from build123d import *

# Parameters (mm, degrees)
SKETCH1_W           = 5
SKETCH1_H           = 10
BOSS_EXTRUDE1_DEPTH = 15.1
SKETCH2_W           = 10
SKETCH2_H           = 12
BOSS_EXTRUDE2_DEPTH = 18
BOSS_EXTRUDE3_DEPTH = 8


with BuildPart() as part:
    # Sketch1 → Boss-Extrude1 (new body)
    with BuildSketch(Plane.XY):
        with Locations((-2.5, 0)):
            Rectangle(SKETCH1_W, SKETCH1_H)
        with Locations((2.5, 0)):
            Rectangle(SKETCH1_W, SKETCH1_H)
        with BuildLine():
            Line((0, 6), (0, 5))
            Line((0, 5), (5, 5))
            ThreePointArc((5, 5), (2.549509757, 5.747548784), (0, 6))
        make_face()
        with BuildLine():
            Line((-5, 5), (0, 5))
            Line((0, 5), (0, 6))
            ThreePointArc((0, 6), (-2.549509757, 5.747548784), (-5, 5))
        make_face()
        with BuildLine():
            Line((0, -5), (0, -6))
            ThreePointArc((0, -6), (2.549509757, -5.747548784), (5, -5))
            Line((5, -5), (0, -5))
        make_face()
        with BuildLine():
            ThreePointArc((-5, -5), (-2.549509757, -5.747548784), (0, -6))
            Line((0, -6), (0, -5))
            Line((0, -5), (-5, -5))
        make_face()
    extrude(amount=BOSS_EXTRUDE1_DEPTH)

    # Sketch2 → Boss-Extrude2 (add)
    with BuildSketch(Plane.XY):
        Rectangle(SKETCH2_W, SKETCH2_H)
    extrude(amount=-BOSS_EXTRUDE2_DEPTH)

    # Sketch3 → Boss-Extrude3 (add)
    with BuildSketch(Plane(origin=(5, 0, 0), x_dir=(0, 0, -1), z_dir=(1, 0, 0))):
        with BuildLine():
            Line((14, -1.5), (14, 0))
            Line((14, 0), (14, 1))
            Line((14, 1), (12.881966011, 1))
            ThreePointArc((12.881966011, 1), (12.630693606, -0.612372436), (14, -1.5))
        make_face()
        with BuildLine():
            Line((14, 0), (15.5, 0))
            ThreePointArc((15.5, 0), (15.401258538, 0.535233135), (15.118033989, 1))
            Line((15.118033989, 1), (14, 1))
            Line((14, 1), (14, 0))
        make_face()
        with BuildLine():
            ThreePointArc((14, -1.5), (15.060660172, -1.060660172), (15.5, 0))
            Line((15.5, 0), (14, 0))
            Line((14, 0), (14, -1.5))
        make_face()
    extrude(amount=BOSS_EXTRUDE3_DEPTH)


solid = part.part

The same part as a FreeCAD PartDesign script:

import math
import FreeCAD as App
import Part
import Sketcher
from FreeCAD import Vector
Q = App.Units.Quantity

doc = App.newDocument("Part")
body = doc.addObject("PartDesign::Body", "Body")

sketch1 = doc.addObject("Sketcher::SketchObject", "Sketch")
body.addObject(sketch1)
sketch1.AttachmentSupport = (doc.XY_Plane, [""])
sketch1.MapMode = "FlatFace"
sketch1.addGeometry([
    Part.LineSegment(Vector(-5, 5, 0), Vector(-5, -5, 0)),
    Part.ArcOfCircle(Part.Circle(Vector(0, 7, 0), Vector(0, 0, 1), 13), math.radians(-113), math.radians(-90)),
    Part.ArcOfCircle(Part.Circle(Vector(0, 7, 0), Vector(0, 0, 1), 13), math.radians(-90), math.radians(-67)),
    Part.LineSegment(Vector(5, -5, 0), Vector(5, 5, 0)),
    Part.ArcOfCircle(Part.Circle(Vector(0, -7, 0), Vector(0, 0, 1), 13), math.radians(67), math.radians(90)),
    Part.ArcOfCircle(Part.Circle(Vector(0, -7, 0), Vector(0, 0, 1), 13), math.radians(90), math.radians(113)),
], False)
sketch1.addConstraint([
    Sketcher.Constraint("Coincident", 0, 2, 1, 1),
    Sketcher.Constraint("Tangent", 1, 2, 2, 1),
    Sketcher.Constraint("Coincident", 2, 2, 3, 1),
    Sketcher.Constraint("Coincident", 3, 2, 4, 1),
    Sketcher.Constraint("Tangent", 4, 2, 5, 1),
    Sketcher.Constraint("Coincident", 5, 2, 0, 1),
    Sketcher.Constraint("Vertical", 0),
    Sketcher.Constraint("Vertical", 3),
    Sketcher.Constraint("Equal", 1, 2),
    Sketcher.Constraint("Equal", 2, 4),
    Sketcher.Constraint("Equal", 4, 5),
    Sketcher.Constraint("Symmetric", 1, 3, 4, 3, -1, 1),
    Sketcher.Constraint("Symmetric", 0, 2, 2, 2, -2),
    Sketcher.Constraint("PointOnObject", 1, 2, -2),
    Sketcher.Constraint("PointOnObject", 4, 2, -2),
    Sketcher.Constraint("Radius", 1, Q("13 mm")),
    Sketcher.Constraint("DistanceY", 0, 2, 0, 1, Q("10 mm")),
    Sketcher.Constraint("DistanceY", -1, 1, 1, 3, Q("7 mm")),
])
pad1 = doc.addObject("PartDesign::Pad", "Pad")
body.addObject(pad1)
pad1.Profile = sketch1
pad1.Length = 15.1

sketch2 = doc.addObject("Sketcher::SketchObject", "Sketch001")
body.addObject(sketch2)
sketch2.AttachmentSupport = (doc.XY_Plane, [""])
sketch2.MapMode = "FlatFace"
sketch2.addGeometry([
    Part.LineSegment(Vector(-5, 6, 0), Vector(-5, -6, 0)),
    Part.LineSegment(Vector(-5, -6, 0), Vector(5, -6, 0)),
    Part.LineSegment(Vector(5, -6, 0), Vector(5, 6, 0)),
    Part.LineSegment(Vector(5, 6, 0), Vector(-5, 6, 0)),
], False)
sketch2.addConstraint([
    Sketcher.Constraint("Coincident", 0, 2, 1, 1),
    Sketcher.Constraint("Coincident", 1, 2, 2, 1),
    Sketcher.Constraint("Coincident", 2, 2, 3, 1),
    Sketcher.Constraint("Coincident", 3, 2, 0, 1),
    Sketcher.Constraint("Vertical", 0),
    Sketcher.Constraint("Horizontal", 1),
    Sketcher.Constraint("Vertical", 2),
    Sketcher.Constraint("Horizontal", 3),
    Sketcher.Constraint("Symmetric", 0, 2, 2, 2, -1, 1),
    Sketcher.Constraint("DistanceX", 1, 1, 1, 2, Q("10 mm")),
    Sketcher.Constraint("DistanceY", 0, 2, 0, 1, Q("12 mm")),
])
pad2 = doc.addObject("PartDesign::Pad", "Pad001")
body.addObject(pad2)
pad2.Profile = sketch2
pad2.Length = 18
pad2.Reversed = True

sketch3 = doc.addObject("Sketcher::SketchObject", "Sketch002")
body.addObject(sketch3)
sketch3.AttachmentSupport = (doc.YZ_Plane, [""])
sketch3.MapMode = "FlatFace"
sketch3.AttachmentOffset = App.Placement(Vector(0, 0, 5), App.Rotation())
sketch3.addGeometry([
    Part.ArcOfCircle(Part.Circle(Vector(0, -14, 0), Vector(0, 0, 1), 1.5), math.radians(-90), math.radians(-48)),
    Part.LineSegment(Vector(1, -15.1, 0), Vector(1, -12.9, 0)),
    Part.ArcOfCircle(Part.Circle(Vector(0, -14, 0), Vector(0, 0, 1), 1.5), math.radians(48), math.radians(180)),
    Part.ArcOfCircle(Part.Circle(Vector(0, -14, 0), Vector(0, 0, 1), 1.5), math.radians(180), math.radians(270)),
], False)
sketch3.addConstraint([
    Sketcher.Constraint("Coincident", 0, 2, 1, 1),
    Sketcher.Constraint("Coincident", 1, 2, 2, 1),
    Sketcher.Constraint("Tangent", 2, 2, 3, 1),
    Sketcher.Constraint("Tangent", 3, 2, 0, 1),
    Sketcher.Constraint("Vertical", 1),
    Sketcher.Constraint("Coincident", 2, 3, 0, 3),
    Sketcher.Constraint("PointOnObject", 0, 3, -2),
    Sketcher.Constraint("PointOnObject", 3, 2, -2),
    Sketcher.Constraint("Horizontal", 3, 3, 2, 2),
    Sketcher.Constraint("Radius", 0, Q("1.5 mm")),
    Sketcher.Constraint("DistanceY", 0, 3, -1, 1, Q("14 mm")),
    Sketcher.Constraint("DistanceX", -1, 1, 0, 2, Q("1 mm")),
])
pad3 = doc.addObject("PartDesign::Pad", "Pad002")
body.addObject(pad3)
pad3.Profile = sketch3
pad3.Length = 8

doc.recompute()
